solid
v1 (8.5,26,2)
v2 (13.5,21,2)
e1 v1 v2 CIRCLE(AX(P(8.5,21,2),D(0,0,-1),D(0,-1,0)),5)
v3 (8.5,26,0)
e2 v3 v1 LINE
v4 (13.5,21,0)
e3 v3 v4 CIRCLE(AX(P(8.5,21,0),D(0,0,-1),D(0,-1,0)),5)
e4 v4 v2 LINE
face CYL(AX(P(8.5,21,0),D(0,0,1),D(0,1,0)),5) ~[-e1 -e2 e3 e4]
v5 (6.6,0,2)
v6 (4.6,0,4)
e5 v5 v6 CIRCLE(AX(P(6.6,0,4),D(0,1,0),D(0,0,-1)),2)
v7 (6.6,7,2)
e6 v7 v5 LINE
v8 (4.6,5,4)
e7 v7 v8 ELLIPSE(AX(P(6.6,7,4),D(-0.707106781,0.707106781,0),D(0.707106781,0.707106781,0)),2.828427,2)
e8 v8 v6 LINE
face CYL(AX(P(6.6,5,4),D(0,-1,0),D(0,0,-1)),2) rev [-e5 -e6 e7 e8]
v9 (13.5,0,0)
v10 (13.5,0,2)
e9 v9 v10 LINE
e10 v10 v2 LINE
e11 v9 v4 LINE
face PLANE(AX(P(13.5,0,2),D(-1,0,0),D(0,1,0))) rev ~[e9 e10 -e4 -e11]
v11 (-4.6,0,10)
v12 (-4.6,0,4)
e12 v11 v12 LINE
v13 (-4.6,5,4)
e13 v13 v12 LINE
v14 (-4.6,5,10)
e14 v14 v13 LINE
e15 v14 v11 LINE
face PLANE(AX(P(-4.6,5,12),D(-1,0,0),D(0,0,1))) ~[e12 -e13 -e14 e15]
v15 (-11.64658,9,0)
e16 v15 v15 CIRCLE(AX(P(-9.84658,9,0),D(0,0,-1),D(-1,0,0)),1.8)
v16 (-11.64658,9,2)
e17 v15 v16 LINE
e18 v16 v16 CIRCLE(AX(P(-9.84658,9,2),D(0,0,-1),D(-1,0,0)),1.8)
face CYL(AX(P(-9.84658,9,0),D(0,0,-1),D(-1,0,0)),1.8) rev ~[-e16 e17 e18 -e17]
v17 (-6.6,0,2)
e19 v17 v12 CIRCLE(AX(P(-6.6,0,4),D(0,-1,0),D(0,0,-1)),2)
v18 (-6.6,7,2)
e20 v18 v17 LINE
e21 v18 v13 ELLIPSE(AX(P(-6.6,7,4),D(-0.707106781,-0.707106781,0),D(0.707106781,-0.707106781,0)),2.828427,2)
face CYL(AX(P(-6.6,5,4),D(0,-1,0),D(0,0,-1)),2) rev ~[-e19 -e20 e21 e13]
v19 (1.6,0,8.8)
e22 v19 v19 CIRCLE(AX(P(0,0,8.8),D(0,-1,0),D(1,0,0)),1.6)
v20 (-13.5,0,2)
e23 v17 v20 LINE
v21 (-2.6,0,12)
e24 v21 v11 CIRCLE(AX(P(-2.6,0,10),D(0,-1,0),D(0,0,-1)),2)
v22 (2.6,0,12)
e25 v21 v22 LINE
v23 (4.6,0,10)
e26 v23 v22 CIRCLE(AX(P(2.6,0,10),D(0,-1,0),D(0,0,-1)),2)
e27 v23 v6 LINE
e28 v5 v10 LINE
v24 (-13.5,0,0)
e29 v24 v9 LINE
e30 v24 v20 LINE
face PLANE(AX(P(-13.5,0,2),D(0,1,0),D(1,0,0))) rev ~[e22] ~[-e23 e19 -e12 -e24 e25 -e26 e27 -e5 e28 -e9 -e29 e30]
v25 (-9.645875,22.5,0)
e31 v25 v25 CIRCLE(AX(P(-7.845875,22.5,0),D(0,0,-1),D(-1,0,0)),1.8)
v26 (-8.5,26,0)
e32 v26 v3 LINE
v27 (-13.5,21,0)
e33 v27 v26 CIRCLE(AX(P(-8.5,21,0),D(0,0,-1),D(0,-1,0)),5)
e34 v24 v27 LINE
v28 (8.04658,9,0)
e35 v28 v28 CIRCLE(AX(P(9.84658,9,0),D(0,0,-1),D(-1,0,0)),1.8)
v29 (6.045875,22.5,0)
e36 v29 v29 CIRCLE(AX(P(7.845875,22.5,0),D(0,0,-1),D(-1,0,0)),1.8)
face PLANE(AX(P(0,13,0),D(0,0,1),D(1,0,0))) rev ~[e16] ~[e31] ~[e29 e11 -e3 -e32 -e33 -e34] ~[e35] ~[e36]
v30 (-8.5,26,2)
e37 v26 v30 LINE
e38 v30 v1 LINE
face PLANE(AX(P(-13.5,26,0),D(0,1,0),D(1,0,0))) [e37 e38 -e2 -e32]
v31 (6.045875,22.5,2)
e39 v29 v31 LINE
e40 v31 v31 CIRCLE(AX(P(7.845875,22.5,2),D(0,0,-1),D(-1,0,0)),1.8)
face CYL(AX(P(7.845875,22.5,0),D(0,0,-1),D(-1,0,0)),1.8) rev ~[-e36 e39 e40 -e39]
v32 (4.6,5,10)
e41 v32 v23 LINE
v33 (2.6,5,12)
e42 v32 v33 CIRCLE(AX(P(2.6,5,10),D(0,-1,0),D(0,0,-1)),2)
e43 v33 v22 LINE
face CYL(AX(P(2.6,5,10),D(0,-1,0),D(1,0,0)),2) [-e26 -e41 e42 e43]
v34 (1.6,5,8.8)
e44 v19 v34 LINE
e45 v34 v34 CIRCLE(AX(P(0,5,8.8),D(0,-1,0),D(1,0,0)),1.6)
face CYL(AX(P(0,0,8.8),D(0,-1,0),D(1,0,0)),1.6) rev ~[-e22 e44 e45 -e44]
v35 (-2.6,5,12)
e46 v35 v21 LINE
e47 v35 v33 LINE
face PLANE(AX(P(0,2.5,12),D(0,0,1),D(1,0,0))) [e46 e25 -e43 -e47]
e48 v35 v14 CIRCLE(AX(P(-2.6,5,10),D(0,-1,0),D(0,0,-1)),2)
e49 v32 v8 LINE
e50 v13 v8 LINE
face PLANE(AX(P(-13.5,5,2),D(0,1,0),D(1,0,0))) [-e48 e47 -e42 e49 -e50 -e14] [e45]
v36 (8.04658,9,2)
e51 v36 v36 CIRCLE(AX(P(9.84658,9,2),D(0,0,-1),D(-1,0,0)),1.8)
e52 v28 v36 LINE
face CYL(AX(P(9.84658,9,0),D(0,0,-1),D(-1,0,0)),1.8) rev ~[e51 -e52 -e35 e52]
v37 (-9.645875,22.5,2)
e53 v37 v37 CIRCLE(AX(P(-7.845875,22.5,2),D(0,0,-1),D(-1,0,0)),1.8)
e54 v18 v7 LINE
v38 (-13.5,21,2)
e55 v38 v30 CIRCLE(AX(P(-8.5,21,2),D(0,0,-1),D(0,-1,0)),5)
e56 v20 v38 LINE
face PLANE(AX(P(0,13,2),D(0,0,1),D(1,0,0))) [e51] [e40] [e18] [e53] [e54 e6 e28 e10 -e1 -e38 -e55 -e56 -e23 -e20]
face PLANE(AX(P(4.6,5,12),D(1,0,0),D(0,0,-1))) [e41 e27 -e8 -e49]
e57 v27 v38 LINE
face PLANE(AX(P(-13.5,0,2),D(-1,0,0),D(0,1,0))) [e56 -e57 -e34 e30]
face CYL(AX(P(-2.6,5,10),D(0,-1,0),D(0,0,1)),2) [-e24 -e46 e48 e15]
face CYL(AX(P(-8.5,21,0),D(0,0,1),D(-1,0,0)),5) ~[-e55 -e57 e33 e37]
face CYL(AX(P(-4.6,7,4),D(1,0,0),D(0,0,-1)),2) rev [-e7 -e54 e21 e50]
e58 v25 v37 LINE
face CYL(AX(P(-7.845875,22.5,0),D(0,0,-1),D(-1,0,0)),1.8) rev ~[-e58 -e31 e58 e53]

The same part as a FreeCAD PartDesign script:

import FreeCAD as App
import Part
import Sketcher
Q = App.Units.Quantity


def edges_at(feature, points):
    """Names of the edges that pass closest to the given points."""
    edges = feature.Shape.Edges
    near = lambda p: min(range(len(edges)), key=lambda i: edges[i].distToShape(Part.Vertex(*p))[0])
    return sorted({f"Edge{near(p) + 1}" for p in points})


def add_polygon(sketch, points):
    """Adds a closed chain of lines whose ends are joined by coincident constraints."""
    first, n = sketch.GeometryCount, len(points)
    for a, b in zip(points, points[1:] + points[:1]):
        sketch.addGeometry(Part.LineSegment(App.Vector(*a, 0), App.Vector(*b, 0)), False)
    for i in range(n):
        sketch.addConstraint(Sketcher.Constraint("Coincident", first + i, 2, first + (i + 1) % n, 1))

doc = App.newDocument("Part")
body = doc.addObject("PartDesign::Body", "Body")

# Sketch on XY plane
sketch1 = body.newObject("Sketcher::SketchObject", "Sketch")
sketch1.AttachmentSupport = (doc.getObject("XY_Plane"), [""])
sketch1.MapMode = "FlatFace"
add_polygon(sketch1, [(-13.5, 26), (-13.5, 0), (13.5, 0), (13.5, 26)])  # lines 0-3
sketch1.addConstraint([
    Sketcher.Constraint("Vertical", 0),
    Sketcher.Constraint("Horizontal", 1),
    Sketcher.Constraint("Vertical", 2),
    Sketcher.Constraint("Horizontal", 3),
    Sketcher.Constraint("Symmetric", 0, 2, 1, 2, -1, 1),
    Sketcher.Constraint("DistanceX", 1, 1, 1, 2, Q("27 mm")),
    Sketcher.Constraint("DistanceY", 0, 2, 0, 1, Q("26 mm")),
])
pad1 = body.newObject("PartDesign::Pad", "Pad")
pad1.Profile = sketch1
pad1.Length = 2

# Sketch on XY plane
sketch2 = body.newObject("Sketcher::SketchObject", "Sketch001")
sketch2.AttachmentSupport = (doc.getObject("XY_Plane"), [""])
sketch2.MapMode = "FlatFace"
sketch2.AttachmentOffset = App.Placement(App.Vector(0, 0, 2), App.Rotation())
add_polygon(sketch2, [(-13.5, 5), (-13.5, 0), (13.5, 0), (13.5, 5)])  # lines 0-3
sketch2.addConstraint([
    Sketcher.Constraint("Vertical", 0),
    Sketcher.Constraint("Horizontal", 1),
    Sketcher.Constraint("Vertical", 2),
    Sketcher.Constraint("Horizontal", 3),
    Sketcher.Constraint("Symmetric", 0, 2, 1, 2, -1, 1),
    Sketcher.Constraint("DistanceX", 1, 1, 1, 2, Q("27 mm")),
    Sketcher.Constraint("DistanceY", 0, 2, 0, 1, Q("5 mm")),
])
pad2 = body.newObject("PartDesign::Pad", "Pad001")
pad2.Profile = sketch2
pad2.Length = 10

# Sketch on XZ plane
sketch3 = body.newObject("Sketcher::SketchObject", "Sketch002")
sketch3.AttachmentSupport = (doc.getObject("XZ_Plane"), [""])
sketch3.MapMode = "FlatFace"
sketch3.addGeometry(Part.Circle(App.Vector(0, 8.8, 0), App.Vector(0, 0, 1), 1.6), False)
sketch3.addConstraint([
    Sketcher.Constraint("PointOnObject", 0, 3, -2),
    Sketcher.Constraint("Diameter", 0, Q("3.2 mm")),
    Sketcher.Constraint("DistanceY", -1, 1, 0, 3, Q("8.8 mm")),
])
pocket1 = body.newObject("PartDesign::Pocket", "Pocket")
pocket1.Profile = sketch3
pocket1.Type = "UpToFirst"

# Sketch on XZ plane
sketch4 = body.newObject("Sketcher::SketchObject", "Sketch003")
sketch4.AttachmentSupport = (doc.getObject("XZ_Plane"), [""])
sketch4.MapMode = "FlatFace"
sketch4.AttachmentOffset = App.Placement(App.Vector(0, 0, -5), App.Rotation())
add_polygon(sketch4, [(4.6, 2), (4.6, 12), (13.5, 12), (13.5, 2)])  # lines 0-3
sketch4.addConstraint([
    Sketcher.Constraint("Vertical", 0),
    Sketcher.Constraint("Horizontal", 1),
    Sketcher.Constraint("Vertical", 2),
    Sketcher.Constraint("Horizontal", 3),
    Sketcher.Constraint("DistanceY", 0, 1, 0, 2, Q("10 mm")),
    Sketcher.Constraint("DistanceX", 1, 1, 1, 2, Q("8.9 mm")),
    Sketcher.Constraint("DistanceY", -1, 1, 0, 2, Q("12 mm")),
    Sketcher.Constraint("DistanceX", -1, 1, 0, 2, Q("4.6 mm")),
])
pocket2 = body.newObject("PartDesign::Pocket", "Pocket001")
pocket2.Profile = sketch4
pocket2.Length = 5
pocket2.Reversed = True
doc.recompute()

mirrored = body.newObject("PartDesign::Mirrored", "Mirrored")
mirrored.Originals = [pocket2]
mirrored.MirrorPlane = (doc.getObject("YZ_Plane"), [""])
body.Tip = mirrored

# Sketch on XY plane
sketch5 = body.newObject("Sketcher::SketchObject", "Sketch004")
sketch5.AttachmentSupport = (doc.getObject("XY_Plane"), [""])
sketch5.MapMode = "FlatFace"
sketch5.addGeometry(Part.Circle(App.Vector(7.845875, 22.5, 0), App.Vector(0, 0, 1), 1.8), False)
sketch5.addConstraint([
    Sketcher.Constraint("Diameter", 0, Q("3.6 mm")),
    Sketcher.Constraint("DistanceY", -1, 1, 0, 3, Q("22.5 mm")),
    Sketcher.Constraint("DistanceX", -1, 1, 0, 3, Q("7.845875 mm")),
])
pocket3 = body.newObject("PartDesign::Pocket", "Pocket002")
pocket3.Profile = sketch5
pocket3.Type = "UpToFirst"
pocket3.Reversed = True

# Sketch on XY plane
sketch6 = body.newObject("Sketcher::SketchObject", "Sketch005")
sketch6.AttachmentSupport = (doc.getObject("XY_Plane"), [""])
sketch6.MapMode = "FlatFace"
sketch6.addGeometry(Part.Circle(App.Vector(-7.845875, 22.5, 0), App.Vector(0, 0, 1), 1.8), False)
sketch6.addConstraint([
    Sketcher.Constraint("Diameter", 0, Q("3.6 mm")),
    Sketcher.Constraint("DistanceY", -1, 1, 0, 3, Q("22.5 mm")),
    Sketcher.Constraint("DistanceX", 0, 3, -1, 1, Q("7.845875 mm")),
])
pocket4 = body.newObject("PartDesign::Pocket", "Pocket003")
pocket4.Profile = sketch6
pocket4.Type = "UpToFirst"
pocket4.Reversed = True

# Sketch on XY plane
sketch7 = body.newObject("Sketcher::SketchObject", "Sketch006")
sketch7.AttachmentSupport = (doc.getObject("XY_Plane"), [""])
sketch7.MapMode = "FlatFace"
sketch7.addGeometry(Part.Circle(App.Vector(9.84658, 9, 0), App.Vector(0, 0, 1), 1.8), False)
sketch7.addConstraint([
    Sketcher.Constraint("Diameter", 0, Q("3.6 mm")),
    Sketcher.Constraint("DistanceY", -1, 1, 0, 3, Q("9 mm")),
    Sketcher.Constraint("DistanceX", -1, 1, 0, 3, Q("9.84658 mm")),
])
pocket5 = body.newObject("PartDesign::Pocket", "Pocket004")
pocket5.Profile = sketch7
pocket5.Type = "UpToFirst"
pocket5.Reversed = True

# Sketch on XY plane
sketch8 = body.newObject("Sketcher::SketchObject", "Sketch007")
sketch8.AttachmentSupport = (doc.getObject("XY_Plane"), [""])
sketch8.MapMode = "FlatFace"
sketch8.addGeometry(Part.Circle(App.Vector(-9.84658, 9, 0), App.Vector(0, 0, 1), 1.8), False)
sketch8.addConstraint([
    Sketcher.Constraint("Diameter", 0, Q("3.6 mm")),
    Sketcher.Constraint("DistanceY", -1, 1, 0, 3, Q("9 mm")),
    Sketcher.Constraint("DistanceX", 0, 3, -1, 1, Q("9.84658 mm")),
])
pocket6 = body.newObject("PartDesign::Pocket", "Pocket005")
pocket6.Profile = sketch8
pocket6.Type = "UpToFirst"
pocket6.Reversed = True
doc.recompute()

fillet = body.newObject("PartDesign::Fillet", "Fillet")
fillet.Base = (pocket6, edges_at(pocket6, [(-13.5, 26, 1), (13.5, 26, 1)]))
fillet.Radius = 5
doc.recompute()

fillet2 = body.newObject("PartDesign::Fillet", "Fillet001")
fillet2.Base = (fillet, edges_at(fillet, [(0, 5, 2), (4.6, 2.5, 2), (-4.6, 2.5, 2)]))
fillet2.Radius = 2
doc.recompute()

fillet3 = body.newObject("PartDesign::Fillet", "Fillet002")
fillet3.Base = (fillet2, edges_at(fillet2, [(4.6, 2.5, 12), (-4.6, 2.5, 12)]))
fillet3.Radius = 2

doc.recompute()
